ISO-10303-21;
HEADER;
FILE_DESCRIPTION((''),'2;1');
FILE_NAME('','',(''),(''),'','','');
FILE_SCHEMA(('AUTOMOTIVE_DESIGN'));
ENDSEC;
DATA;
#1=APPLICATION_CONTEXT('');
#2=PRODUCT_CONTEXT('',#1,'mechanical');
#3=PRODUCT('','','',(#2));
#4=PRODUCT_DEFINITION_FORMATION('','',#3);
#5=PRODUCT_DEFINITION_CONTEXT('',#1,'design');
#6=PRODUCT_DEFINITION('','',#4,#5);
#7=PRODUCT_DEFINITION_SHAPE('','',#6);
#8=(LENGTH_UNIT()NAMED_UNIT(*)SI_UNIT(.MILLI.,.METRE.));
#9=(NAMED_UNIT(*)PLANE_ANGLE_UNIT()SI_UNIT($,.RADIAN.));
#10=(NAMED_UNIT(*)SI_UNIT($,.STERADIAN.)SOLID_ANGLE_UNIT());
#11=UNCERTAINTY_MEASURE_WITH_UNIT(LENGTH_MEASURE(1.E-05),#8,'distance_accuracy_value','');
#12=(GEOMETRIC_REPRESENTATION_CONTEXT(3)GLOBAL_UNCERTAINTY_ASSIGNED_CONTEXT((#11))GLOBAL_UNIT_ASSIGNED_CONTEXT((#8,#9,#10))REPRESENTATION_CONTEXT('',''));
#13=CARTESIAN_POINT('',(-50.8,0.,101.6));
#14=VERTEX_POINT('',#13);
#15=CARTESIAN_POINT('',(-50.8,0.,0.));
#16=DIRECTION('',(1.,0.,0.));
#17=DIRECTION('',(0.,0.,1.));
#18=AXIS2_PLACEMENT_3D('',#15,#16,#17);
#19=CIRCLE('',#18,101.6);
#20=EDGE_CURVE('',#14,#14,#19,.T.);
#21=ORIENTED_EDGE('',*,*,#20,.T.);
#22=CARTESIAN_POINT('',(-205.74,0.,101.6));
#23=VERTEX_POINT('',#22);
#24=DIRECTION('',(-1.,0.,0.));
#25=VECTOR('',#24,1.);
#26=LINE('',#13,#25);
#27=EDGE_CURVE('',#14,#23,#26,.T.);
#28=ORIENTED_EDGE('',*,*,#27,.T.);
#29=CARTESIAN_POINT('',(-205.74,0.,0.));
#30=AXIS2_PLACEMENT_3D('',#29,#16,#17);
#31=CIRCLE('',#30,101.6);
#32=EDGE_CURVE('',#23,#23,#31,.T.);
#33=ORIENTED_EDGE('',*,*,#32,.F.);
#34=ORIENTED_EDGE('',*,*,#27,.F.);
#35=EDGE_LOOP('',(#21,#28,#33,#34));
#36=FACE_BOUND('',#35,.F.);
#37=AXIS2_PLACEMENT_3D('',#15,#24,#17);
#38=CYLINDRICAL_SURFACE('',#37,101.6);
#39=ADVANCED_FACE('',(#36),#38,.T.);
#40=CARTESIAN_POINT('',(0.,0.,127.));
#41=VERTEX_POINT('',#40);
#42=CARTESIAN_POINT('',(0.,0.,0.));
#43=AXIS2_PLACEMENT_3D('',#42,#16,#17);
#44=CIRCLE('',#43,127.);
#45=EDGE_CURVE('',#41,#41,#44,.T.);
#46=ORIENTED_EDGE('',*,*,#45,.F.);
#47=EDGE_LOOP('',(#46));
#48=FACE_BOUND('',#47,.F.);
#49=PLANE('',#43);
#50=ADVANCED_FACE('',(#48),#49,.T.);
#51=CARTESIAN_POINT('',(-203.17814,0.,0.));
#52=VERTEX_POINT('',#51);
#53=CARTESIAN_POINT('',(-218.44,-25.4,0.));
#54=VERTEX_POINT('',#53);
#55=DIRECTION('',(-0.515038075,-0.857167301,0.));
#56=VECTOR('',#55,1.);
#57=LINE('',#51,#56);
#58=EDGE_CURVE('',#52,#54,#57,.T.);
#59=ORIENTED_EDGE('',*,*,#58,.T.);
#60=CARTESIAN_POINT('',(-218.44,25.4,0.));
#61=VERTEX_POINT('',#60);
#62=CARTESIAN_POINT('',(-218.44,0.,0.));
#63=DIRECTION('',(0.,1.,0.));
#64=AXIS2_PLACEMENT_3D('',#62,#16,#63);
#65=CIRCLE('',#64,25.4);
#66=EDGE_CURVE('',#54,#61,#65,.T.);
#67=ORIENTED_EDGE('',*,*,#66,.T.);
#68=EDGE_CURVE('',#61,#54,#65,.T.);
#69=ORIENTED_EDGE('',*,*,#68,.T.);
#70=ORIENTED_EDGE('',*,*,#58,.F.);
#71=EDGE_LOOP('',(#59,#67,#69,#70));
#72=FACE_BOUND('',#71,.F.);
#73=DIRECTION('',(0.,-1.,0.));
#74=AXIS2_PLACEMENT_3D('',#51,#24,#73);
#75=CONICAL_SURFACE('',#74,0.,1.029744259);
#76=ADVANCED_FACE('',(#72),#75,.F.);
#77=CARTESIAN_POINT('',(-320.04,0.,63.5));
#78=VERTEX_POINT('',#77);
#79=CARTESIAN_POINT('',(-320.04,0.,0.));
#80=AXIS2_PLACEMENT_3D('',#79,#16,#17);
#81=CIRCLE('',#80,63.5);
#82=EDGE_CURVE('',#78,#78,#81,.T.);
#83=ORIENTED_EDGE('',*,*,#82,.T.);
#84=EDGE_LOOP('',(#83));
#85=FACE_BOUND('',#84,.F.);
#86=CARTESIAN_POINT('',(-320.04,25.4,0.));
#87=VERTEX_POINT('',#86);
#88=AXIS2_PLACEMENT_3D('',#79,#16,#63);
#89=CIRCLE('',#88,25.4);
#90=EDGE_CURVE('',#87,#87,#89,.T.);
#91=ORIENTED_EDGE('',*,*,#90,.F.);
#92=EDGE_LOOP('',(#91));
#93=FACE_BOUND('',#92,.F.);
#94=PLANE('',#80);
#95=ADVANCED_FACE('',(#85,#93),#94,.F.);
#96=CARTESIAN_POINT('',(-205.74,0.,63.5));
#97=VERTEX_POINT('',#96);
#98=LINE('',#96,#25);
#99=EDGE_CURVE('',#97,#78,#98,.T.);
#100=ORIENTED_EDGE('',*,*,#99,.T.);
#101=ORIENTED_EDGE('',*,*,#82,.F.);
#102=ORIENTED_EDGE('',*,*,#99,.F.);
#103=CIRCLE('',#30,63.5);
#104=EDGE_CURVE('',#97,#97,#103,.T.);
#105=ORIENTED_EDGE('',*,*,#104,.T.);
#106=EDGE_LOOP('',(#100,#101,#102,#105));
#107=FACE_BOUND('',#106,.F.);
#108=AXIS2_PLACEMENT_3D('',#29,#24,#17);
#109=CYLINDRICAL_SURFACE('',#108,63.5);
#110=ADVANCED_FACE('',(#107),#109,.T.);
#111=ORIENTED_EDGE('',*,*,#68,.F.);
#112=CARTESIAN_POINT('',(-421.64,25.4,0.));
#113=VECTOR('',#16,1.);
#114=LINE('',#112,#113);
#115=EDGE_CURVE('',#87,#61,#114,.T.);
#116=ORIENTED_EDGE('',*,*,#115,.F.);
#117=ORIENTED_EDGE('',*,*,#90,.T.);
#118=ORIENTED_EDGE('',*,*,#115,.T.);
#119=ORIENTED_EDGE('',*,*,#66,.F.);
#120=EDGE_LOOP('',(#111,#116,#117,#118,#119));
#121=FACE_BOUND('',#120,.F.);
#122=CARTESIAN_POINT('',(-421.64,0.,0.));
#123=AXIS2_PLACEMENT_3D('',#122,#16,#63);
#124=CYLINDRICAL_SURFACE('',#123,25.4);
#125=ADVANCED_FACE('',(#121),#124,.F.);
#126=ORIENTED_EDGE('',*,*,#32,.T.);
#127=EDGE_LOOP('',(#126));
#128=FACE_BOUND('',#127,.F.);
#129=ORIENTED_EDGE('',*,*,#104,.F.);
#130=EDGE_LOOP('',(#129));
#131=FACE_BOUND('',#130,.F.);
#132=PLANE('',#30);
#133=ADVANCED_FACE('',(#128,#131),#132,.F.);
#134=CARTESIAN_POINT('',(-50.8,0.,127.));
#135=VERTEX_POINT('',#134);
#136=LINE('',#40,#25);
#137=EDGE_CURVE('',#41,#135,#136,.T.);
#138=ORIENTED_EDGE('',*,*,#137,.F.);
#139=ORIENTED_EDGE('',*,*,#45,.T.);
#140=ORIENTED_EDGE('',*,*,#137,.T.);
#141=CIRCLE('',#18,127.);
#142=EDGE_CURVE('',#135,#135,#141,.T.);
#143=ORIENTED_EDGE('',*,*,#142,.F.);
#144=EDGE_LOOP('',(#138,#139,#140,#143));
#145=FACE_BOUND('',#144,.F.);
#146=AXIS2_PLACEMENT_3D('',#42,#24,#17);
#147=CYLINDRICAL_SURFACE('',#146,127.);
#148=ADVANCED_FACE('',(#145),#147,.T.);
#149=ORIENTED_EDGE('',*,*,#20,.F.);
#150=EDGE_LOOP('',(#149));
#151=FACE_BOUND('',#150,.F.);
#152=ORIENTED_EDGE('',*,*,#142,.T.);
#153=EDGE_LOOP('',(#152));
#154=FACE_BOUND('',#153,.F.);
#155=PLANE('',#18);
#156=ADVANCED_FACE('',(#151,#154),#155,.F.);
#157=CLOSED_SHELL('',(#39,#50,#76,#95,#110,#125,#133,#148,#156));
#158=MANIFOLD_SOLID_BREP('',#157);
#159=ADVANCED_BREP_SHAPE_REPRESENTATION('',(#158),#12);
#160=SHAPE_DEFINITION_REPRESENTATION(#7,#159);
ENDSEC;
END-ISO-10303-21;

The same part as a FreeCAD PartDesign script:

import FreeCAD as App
import Part
import Sketcher

V = App.Vector
Q = App.Units.Quantity


def add_polygon(sketch, points):
    """Adds a closed chain of lines whose ends are joined by coincident constraints."""
    first, n = sketch.GeometryCount, len(points)
    for a, b in zip(points, points[1:] + points[:1]):
        sketch.addGeometry(Part.LineSegment(App.Vector(*a, 0), App.Vector(*b, 0)), False)
    for i in range(n):
        sketch.addConstraint(Sketcher.Constraint("Coincident", first + i, 2, first + (i + 1) % n, 1))

doc = App.newDocument("Part")
body = doc.addObject("PartDesign::Body", "Body")

# Sketch on XZ plane
sketch1 = doc.addObject("Sketcher::SketchObject", "Sketch")
body.addObject(sketch1)
sketch1.AttachmentSupport = (doc.XZ_Plane, [""])
sketch1.MapMode = "FlatFace"
add_polygon(sketch1, [(0, 0), (0, 127), (-51, 127), (-51, 102), (-206, 102), (-206, 64), (-320, 64), (-320, 0)])  # lines 0-7
sketch1.addConstraint(Sketcher.Constraint("Vertical", 0))
sketch1.addConstraint(Sketcher.Constraint("Horizontal", 1))
sketch1.addConstraint(Sketcher.Constraint("Vertical", 2))
sketch1.addConstraint(Sketcher.Constraint("Horizontal", 3))
sketch1.addConstraint(Sketcher.Constraint("Vertical", 4))
sketch1.addConstraint(Sketcher.Constraint("Horizontal", 5))
sketch1.addConstraint(Sketcher.Constraint("Vertical", 6))
sketch1.addConstraint(Sketcher.Constraint("Horizontal", 7))
sketch1.addConstraint(Sketcher.Constraint("Coincident", 7, 2, -1, 1))
sketch1.addConstraint(Sketcher.Constraint("DistanceX", 1, 2, 1, 1, Q("2 in")))
sketch1.addConstraint(Sketcher.Constraint("DistanceY", 0, 1, 0, 2, Q("5 in")))
sketch1.addConstraint(Sketcher.Constraint("DistanceY", 2, 2, 2, 1, Q("1 in")))
sketch1.addConstraint(Sketcher.Constraint("DistanceX", 3, 2, 3, 1, Q("6.1 in")))
sketch1.addConstraint(Sketcher.Constraint("DistanceX", 5, 2, 5, 1, Q("4.5 in")))
sketch1.addConstraint(Sketcher.Constraint("DistanceY", 4, 2, 4, 1, Q("1.5 in")))
revolution = doc.addObject("PartDesign::Revolution", "Revolution")
body.addObject(revolution)
revolution.Profile = sketch1
revolution.ReferenceAxis = (sketch1, ["H_Axis"])
revolution.Angle = 360

# Sketch on YZ plane
sketch2 = doc.addObject("Sketcher::SketchObject", "Sketch001")
body.addObject(sketch2)
sketch2.AttachmentSupport = (doc.YZ_Plane, [""])
sketch2.MapMode = "FlatFace"
sketch2.AttachmentOffset = App.Placement(V(0, 0, -12.6 * 25.4), App.Rotation())
sketch2.addGeometry(Part.Circle(V(0, 0, 0), V(0, 0, 1), 25), False)
sketch2.addConstraint(Sketcher.Constraint("Coincident", 0, 3, -1, 1))
sketch2.addConstraint(Sketcher.Constraint("Diameter", 0, Q("2 in")))
doc.recompute()
hole = doc.addObject("PartDesign::Hole", "Hole")
body.addObject(hole)
hole.Profile = sketch2
hole.ThreadType = "None"
hole.Diameter = Q("2 in")
hole.DepthType = "Dimension"
hole.Depth = Q("4 in")
hole.DrillPoint = "Angled"
hole.DrillPointAngle = 118
hole.Reversed = True

doc.recompute()
